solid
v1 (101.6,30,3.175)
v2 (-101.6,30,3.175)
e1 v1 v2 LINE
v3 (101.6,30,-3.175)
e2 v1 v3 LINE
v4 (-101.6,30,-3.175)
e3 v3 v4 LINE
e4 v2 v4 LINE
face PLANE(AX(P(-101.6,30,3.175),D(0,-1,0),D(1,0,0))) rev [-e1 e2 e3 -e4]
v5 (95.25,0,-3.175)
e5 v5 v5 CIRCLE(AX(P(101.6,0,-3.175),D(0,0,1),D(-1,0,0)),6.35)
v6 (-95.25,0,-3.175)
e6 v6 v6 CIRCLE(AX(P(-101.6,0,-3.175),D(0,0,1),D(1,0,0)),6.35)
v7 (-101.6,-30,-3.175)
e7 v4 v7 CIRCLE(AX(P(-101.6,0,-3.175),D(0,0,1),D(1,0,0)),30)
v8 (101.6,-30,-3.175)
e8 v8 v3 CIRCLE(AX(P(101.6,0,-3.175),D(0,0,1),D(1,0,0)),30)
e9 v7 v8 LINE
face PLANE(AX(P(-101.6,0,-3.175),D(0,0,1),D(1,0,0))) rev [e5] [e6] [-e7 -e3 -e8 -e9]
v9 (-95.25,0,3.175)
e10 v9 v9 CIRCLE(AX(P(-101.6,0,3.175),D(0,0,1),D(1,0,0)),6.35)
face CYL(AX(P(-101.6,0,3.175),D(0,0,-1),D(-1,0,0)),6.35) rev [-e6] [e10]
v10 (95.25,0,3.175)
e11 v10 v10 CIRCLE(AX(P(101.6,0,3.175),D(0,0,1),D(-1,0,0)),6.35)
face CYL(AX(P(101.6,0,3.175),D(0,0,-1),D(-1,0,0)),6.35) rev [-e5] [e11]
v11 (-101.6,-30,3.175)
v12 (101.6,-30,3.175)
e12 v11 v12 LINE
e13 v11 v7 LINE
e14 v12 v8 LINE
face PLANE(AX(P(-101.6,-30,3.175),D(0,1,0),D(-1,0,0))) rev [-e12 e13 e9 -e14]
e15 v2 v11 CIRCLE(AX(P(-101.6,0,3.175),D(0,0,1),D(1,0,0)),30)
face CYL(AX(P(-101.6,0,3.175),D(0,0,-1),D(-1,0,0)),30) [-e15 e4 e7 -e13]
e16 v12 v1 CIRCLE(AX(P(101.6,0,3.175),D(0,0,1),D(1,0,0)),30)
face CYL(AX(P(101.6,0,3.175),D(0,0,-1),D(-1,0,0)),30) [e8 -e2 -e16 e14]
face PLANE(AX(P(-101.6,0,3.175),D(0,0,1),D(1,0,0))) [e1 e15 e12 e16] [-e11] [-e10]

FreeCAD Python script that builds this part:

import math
import FreeCAD as App
import Part
import Sketcher
from FreeCAD import Vector
Q = App.Units.Quantity

doc = App.newDocument("Part")
body = doc.addObject("PartDesign::Body", "Body")

sketch1 = doc.addObject("Sketcher::SketchObject", "Sketch")
body.addObject(sketch1)
sketch1.AttachmentSupport = (doc.XY_Plane, [""])
sketch1.MapMode = "FlatFace"
sketch1.addGeometry(Part.LineSegment(Vector(102, 30, 0), Vector(-102, 30, 0)), False)
sketch1.addGeometry(Part.ArcOfCircle(Part.Circle(Vector(-102, 0, 0), Vector(0, 0, 1), 30), math.radians(90), math.radians(270)), False)
sketch1.addGeometry(Part.LineSegment(Vector(-102, -30, 0), Vector(102, -30, 0)), False)
sketch1.addGeometry(Part.ArcOfCircle(Part.Circle(Vector(102, 0, 0), Vector(0, 0, 1), 30), math.radians(-90), math.radians(90)), False)
sketch1.addGeometry(Part.Circle(Vector(102, 0, 0), Vector(0, 0, 1), 6), False)
sketch1.addGeometry(Part.Circle(Vector(-102, 0, 0), Vector(0, 0, 1), 6), False)
sketch1.addConstraint(Sketcher.Constraint("Tangent", 0, 2, 1, 1))
sketch1.addConstraint(Sketcher.Constraint("Tangent", 1, 2, 2, 1))
sketch1.addConstraint(Sketcher.Constraint("Tangent", 2, 2, 3, 1))
sketch1.addConstraint(Sketcher.Constraint("Tangent", 3, 2, 0, 1))
sketch1.addConstraint(Sketcher.Constraint("Horizontal", 0))
sketch1.addConstraint(Sketcher.Constraint("Horizontal", 2))
sketch1.addConstraint(Sketcher.Constraint("Coincident", 4, 3, 3, 3))
sketch1.addConstraint(Sketcher.Constraint("Coincident", 5, 3, 1, 3))
sketch1.addConstraint(Sketcher.Constraint("Equal", 4, 5))
sketch1.addConstraint(Sketcher.Constraint("Symmetric", 1, 3, 3, 3, -1, 1))
sketch1.addConstraint(Sketcher.Constraint("Diameter", 4, Q("0.5 in")))
sketch1.addConstraint(Sketcher.Constraint("DistanceX", 0, 2, 0, 1, Q("8 in")))
sketch1.addConstraint(Sketcher.Constraint("Radius", 1, 30.0))
pad1 = doc.addObject("PartDesign::Pad", "Pad")
body.addObject(pad1)
pad1.Profile = sketch1
pad1.Length = Q("0.25 in")
pad1.Midplane = True

doc.recompute()
